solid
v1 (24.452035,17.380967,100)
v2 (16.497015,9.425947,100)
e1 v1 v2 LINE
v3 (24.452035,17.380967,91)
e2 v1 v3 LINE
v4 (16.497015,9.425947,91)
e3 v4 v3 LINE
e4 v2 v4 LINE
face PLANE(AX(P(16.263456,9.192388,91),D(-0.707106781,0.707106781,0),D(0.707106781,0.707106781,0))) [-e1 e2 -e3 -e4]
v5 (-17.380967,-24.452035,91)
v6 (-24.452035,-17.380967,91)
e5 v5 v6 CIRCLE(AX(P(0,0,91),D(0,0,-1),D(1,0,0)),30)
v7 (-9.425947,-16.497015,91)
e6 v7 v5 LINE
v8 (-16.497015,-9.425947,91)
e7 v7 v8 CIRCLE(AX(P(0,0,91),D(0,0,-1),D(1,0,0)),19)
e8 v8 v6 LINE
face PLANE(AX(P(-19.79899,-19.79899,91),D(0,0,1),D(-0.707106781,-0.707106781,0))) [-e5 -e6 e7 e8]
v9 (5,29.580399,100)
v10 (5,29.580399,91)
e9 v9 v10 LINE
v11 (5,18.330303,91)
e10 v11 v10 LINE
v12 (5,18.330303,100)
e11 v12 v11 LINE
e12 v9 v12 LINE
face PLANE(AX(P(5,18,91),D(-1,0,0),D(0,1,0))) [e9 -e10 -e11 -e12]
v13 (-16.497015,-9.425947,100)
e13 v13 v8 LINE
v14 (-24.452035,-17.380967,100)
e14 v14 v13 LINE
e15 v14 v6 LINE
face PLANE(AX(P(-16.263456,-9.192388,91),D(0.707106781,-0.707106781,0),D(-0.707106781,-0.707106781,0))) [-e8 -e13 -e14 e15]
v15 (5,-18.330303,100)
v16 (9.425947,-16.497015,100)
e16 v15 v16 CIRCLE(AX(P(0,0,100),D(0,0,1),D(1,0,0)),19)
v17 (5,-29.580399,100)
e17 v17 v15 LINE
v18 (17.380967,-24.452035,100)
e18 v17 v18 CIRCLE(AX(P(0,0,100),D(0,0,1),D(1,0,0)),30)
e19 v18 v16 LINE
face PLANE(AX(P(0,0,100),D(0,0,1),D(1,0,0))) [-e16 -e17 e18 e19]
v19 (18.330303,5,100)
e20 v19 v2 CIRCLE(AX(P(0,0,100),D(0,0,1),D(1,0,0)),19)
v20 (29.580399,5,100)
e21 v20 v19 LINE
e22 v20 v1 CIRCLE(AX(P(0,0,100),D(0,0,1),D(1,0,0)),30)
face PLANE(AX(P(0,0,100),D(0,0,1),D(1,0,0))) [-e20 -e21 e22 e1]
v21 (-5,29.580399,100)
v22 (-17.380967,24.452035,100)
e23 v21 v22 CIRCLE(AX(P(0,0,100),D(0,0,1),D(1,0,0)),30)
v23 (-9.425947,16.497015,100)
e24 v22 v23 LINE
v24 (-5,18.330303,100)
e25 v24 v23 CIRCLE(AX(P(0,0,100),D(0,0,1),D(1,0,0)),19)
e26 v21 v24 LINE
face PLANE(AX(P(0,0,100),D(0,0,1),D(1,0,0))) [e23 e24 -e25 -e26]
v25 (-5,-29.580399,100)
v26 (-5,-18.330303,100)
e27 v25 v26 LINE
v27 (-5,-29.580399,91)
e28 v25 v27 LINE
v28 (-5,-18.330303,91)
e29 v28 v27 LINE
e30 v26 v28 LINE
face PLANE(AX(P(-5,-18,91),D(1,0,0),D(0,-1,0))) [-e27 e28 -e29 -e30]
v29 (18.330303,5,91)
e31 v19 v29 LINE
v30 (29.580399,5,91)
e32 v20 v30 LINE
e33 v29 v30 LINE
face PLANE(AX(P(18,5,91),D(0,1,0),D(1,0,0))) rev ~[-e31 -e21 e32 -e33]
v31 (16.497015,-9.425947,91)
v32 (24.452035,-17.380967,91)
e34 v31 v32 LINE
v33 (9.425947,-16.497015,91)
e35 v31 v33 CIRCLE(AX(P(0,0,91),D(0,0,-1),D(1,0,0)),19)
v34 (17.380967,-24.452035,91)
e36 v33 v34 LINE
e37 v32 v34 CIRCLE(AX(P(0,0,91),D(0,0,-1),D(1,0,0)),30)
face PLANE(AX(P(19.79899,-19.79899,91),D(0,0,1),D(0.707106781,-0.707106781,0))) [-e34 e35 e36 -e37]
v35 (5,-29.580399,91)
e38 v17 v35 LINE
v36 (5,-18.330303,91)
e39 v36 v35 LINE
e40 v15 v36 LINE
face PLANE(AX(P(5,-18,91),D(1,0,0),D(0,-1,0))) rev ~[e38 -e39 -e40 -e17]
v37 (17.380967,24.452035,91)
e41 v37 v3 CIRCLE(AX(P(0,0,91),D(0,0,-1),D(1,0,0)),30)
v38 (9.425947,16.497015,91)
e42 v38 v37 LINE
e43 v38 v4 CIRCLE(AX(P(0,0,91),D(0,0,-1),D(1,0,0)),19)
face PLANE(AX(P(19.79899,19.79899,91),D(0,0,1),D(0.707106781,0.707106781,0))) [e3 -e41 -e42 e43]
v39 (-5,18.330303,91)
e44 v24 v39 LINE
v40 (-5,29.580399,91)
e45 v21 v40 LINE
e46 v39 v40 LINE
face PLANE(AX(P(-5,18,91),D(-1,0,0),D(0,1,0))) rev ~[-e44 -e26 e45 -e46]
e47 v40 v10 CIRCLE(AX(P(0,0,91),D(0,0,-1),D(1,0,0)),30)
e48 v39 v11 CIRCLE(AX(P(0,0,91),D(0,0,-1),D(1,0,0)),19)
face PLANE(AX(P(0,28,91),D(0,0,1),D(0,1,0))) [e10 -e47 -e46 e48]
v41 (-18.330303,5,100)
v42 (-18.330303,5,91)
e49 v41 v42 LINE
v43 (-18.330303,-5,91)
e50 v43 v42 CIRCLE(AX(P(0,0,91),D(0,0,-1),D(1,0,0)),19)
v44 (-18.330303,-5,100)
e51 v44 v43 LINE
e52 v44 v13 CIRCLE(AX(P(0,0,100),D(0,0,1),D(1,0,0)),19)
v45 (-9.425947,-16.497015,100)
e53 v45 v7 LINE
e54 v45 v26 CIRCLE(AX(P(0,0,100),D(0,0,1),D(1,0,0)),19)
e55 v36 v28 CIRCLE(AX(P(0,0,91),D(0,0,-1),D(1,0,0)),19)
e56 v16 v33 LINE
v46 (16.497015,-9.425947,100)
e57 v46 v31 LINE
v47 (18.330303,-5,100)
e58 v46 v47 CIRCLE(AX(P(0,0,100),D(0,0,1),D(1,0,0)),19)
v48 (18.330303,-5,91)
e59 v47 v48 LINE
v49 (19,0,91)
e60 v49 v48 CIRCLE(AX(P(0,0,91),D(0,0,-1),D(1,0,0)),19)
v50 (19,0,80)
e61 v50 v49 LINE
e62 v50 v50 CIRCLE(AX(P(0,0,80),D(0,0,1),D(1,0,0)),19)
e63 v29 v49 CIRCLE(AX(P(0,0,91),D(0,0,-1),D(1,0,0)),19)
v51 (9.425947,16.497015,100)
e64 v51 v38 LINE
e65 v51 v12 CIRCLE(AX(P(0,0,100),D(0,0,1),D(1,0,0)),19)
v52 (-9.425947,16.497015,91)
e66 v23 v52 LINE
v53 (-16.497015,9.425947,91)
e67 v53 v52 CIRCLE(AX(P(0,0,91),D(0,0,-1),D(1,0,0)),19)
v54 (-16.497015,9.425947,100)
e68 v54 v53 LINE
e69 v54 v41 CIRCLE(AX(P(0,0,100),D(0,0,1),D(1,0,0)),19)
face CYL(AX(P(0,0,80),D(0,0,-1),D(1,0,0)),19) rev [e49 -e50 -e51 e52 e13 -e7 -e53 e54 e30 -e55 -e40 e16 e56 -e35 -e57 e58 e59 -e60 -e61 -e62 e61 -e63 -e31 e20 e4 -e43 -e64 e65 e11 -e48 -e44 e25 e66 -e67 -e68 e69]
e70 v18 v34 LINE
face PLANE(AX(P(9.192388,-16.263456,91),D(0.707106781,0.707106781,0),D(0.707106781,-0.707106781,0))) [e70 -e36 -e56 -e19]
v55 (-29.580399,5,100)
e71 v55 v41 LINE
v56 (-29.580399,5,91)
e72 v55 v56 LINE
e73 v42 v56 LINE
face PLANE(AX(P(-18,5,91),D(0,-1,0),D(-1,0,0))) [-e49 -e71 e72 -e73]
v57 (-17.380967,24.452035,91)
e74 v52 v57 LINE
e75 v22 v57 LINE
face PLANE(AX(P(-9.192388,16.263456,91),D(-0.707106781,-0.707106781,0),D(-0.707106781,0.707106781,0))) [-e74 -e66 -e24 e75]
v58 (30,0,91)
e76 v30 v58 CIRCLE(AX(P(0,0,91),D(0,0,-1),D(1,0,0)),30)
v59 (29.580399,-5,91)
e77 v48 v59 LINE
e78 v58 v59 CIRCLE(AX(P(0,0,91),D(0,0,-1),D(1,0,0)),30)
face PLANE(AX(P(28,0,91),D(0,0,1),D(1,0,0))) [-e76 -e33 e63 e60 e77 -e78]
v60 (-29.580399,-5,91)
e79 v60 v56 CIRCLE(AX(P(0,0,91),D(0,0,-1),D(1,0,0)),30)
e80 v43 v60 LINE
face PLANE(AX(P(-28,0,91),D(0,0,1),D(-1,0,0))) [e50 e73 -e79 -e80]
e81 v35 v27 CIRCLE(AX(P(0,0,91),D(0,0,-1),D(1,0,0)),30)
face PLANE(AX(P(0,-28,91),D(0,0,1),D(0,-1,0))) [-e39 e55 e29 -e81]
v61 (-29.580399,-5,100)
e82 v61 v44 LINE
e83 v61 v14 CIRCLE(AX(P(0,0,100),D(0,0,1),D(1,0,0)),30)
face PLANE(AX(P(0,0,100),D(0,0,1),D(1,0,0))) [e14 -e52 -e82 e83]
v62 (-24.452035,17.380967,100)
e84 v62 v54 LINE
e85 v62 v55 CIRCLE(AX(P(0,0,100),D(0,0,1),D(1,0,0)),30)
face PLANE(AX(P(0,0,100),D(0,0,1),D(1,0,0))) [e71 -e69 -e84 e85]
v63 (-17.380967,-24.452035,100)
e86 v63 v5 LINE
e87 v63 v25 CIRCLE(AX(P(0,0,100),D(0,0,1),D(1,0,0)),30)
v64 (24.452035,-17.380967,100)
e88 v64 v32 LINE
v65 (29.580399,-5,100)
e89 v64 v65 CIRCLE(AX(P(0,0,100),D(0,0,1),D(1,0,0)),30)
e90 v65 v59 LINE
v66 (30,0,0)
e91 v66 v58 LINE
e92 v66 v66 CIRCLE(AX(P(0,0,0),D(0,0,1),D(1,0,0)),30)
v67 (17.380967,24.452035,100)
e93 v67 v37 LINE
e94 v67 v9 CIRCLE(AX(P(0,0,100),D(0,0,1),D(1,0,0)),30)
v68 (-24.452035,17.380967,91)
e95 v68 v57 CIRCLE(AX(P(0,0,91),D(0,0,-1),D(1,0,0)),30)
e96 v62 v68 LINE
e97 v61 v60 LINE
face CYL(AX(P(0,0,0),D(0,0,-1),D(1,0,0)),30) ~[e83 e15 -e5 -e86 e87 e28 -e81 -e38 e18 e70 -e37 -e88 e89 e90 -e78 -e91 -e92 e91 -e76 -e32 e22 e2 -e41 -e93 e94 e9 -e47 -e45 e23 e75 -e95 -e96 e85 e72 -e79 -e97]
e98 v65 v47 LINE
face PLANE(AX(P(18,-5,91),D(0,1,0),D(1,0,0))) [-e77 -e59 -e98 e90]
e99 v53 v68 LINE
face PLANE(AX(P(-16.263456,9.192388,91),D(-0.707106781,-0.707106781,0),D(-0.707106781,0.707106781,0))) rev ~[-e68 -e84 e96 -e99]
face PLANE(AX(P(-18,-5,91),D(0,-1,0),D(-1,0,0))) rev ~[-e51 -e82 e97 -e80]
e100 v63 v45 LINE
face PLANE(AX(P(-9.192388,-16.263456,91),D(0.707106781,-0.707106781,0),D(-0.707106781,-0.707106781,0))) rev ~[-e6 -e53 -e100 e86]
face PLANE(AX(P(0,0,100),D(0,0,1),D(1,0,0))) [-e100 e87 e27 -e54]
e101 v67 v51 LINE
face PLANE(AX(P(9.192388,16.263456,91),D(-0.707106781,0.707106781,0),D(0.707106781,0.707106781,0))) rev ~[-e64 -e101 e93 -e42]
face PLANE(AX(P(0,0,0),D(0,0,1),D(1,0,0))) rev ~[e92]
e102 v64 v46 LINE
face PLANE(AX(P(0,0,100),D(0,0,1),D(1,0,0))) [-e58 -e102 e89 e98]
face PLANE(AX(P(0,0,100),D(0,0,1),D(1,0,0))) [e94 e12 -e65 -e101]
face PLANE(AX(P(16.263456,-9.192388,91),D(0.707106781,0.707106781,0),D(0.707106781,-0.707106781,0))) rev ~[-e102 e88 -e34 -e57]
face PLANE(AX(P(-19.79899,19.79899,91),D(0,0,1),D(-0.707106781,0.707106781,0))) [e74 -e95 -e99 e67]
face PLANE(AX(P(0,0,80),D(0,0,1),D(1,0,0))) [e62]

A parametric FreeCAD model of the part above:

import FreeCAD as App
import Part
import Sketcher


def add_polygon(sketch, points):
    """Adds a closed chain of lines whose ends are joined by coincident constraints."""
    first, n = sketch.GeometryCount, len(points)
    for a, b in zip(points, points[1:] + points[:1]):
        sketch.addGeometry(Part.LineSegment(App.Vector(*a, 0), App.Vector(*b, 0)), False)
    for i in range(n):
        sketch.addConstraint(Sketcher.Constraint("Coincident", first + i, 2, first + (i + 1) % n, 1))

doc = App.newDocument("Part")
body = doc.addObject("PartDesign::Body", "Body")

# Sketch on XY plane
sketch1 = body.newObject("Sketcher::SketchObject", "Sketch")
sketch1.AttachmentSupport = (doc.getObject("XY_Plane"), [""])
sketch1.MapMode = "FlatFace"
sketch1.AttachmentOffset = App.Placement(App.Vector(0, 0, 80), App.Rotation())
sketch1.addGeometry(Part.Circle(App.Vector(0, 0, 0), App.Vector(0, 0, 1), 19), False)
sketch1.addConstraint(Sketcher.Constraint("Coincident", 0, 3, -1, 1))
sketch1.addConstraint(Sketcher.Constraint("Diameter", 0, 38.0))
pad1 = body.newObject("PartDesign::Pad", "Pad")
pad1.Profile = sketch1
pad1.Length = 20
body2 = doc.addObject("PartDesign::Body", "Body001")

# Sketch on XY plane
sketch2 = body2.newObject("Sketcher::SketchObject", "Sketch001")
sketch2.AttachmentSupport = (doc.getObject("XY_Plane001"), [""])
sketch2.MapMode = "FlatFace"
sketch2.AttachmentOffset = App.Placement(App.Vector(0, 0, 91), App.Rotation())
add_polygon(sketch2, [(18, 5), (18, -5), (38, -5), (38, 5)])  # lines 0-3
sketch2.addConstraint(Sketcher.Constraint("Vertical", 0))
sketch2.addConstraint(Sketcher.Constraint("Horizontal", 1))
sketch2.addConstraint(Sketcher.Constraint("Vertical", 2))
sketch2.addConstraint(Sketcher.Constraint("Horizontal", 3))
sketch2.addConstraint(Sketcher.Constraint("DistanceX", 1, 1, 1, 2, 20.0))
sketch2.addConstraint(Sketcher.Constraint("DistanceY", 0, 2, 0, 1, 10.0))
sketch2.addConstraint(Sketcher.Constraint("DistanceX", -1, 1, 0, 2, 18.0))
sketch2.addConstraint(Sketcher.Constraint("DistanceY", 0, 2, -1, 1, 5.0))
pad2 = body2.newObject("PartDesign::Pad", "Pad001")
pad2.Profile = sketch2
pad2.Length = 10
body3 = doc.addObject("PartDesign::Body", "Body002")
body3.AllowCompound = True
doc.recompute()

body3.BaseFeature = body2
doc.recompute()

body4 = doc.addObject("PartDesign::Body", "Body003")
body4.BaseFeature = body2
body4.Placement = App.Placement(App.Vector(0, 0, 0), App.Rotation(App.Vector(0, 0, 1), 45))
boolean = body3.newObject("PartDesign::Boolean", "Boolean")
boolean.Type = "Fuse"
boolean.addObjects([body4])
doc.recompute()

body5 = doc.addObject("PartDesign::Body", "Body004")
body5.BaseFeature = body2
body5.Placement = App.Placement(App.Vector(0, 0, 0), App.Rotation(App.Vector(0, 0, 1), 90))
boolean2 = body3.newObject("PartDesign::Boolean", "Boolean001")
boolean2.Type = "Fuse"
boolean2.addObjects([body5])
doc.recompute()

body6 = doc.addObject("PartDesign::Body", "Body005")
body6.BaseFeature = body2
body6.Placement = App.Placement(App.Vector(0, 0, 0), App.Rotation(App.Vector(0, 0, 1), 135))
boolean3 = body3.newObject("PartDesign::Boolean", "Boolean002")
boolean3.Type = "Fuse"
boolean3.addObjects([body6])
doc.recompute()

body7 = doc.addObject("PartDesign::Body", "Body006")
body7.BaseFeature = body2
body7.Placement = App.Placement(App.Vector(0, 0, 0), App.Rotation(App.Vector(0, 0, 1), 180))
boolean4 = body3.newObject("PartDesign::Boolean", "Boolean003")
boolean4.Type = "Fuse"
boolean4.addObjects([body7])
doc.recompute()

body8 = doc.addObject("PartDesign::Body", "Body007")
body8.BaseFeature = body2
body8.Placement = App.Placement(App.Vector(0, 0, 0), App.Rotation(App.Vector(0, 0, 1), 225))
boolean5 = body3.newObject("PartDesign::Boolean", "Boolean004")
boolean5.Type = "Fuse"
boolean5.addObjects([body8])
doc.recompute()

body9 = doc.addObject("PartDesign::Body", "Body008")
body9.BaseFeature = body2
body9.Placement = App.Placement(App.Vector(0, 0, 0), App.Rotation(App.Vector(0, 0, 1), 270))
boolean6 = body3.newObject("PartDesign::Boolean", "Boolean005")
boolean6.Type = "Fuse"
boolean6.addObjects([body9])
doc.recompute()

body2.Placement = App.Placement(App.Vector(0, 0, 0), App.Rotation(App.Vector(0, 0, 1), 315))
boolean7 = body3.newObject("PartDesign::Boolean", "Boolean006")
boolean7.Type = "Fuse"
boolean7.addObjects([body2])
body10 = doc.addObject("PartDesign::Body", "Body009")

# Sketch on XY plane
sketch3 = body10.newObject("Sketcher::SketchObject", "Sketch002")
sketch3.AttachmentSupport = (doc.getObject("XY_Plane009"), [""])
sketch3.MapMode = "FlatFace"
sketch3.addGeometry(Part.Circle(App.Vector(0, 0, 0), App.Vector(0, 0, 1), 30), False)
sketch3.addConstraint(Sketcher.Constraint("Coincident", 0, 3, -1, 1))
sketch3.addConstraint(Sketcher.Constraint("Diameter", 0, 60.0))
pad3 = body10.newObject("PartDesign::Pad", "Pad002")
pad3.Profile = sketch3
pad3.Length = 100
doc.recompute()

boolean8 = body10.newObject("PartDesign::Boolean", "Boolean007")
boolean8.Type = "Cut"
boolean8.addObjects([body3])
doc.recompute()

boolean9 = body10.newObject("PartDesign::Boolean", "Boolean008")
boolean9.Type = "Cut"
boolean9.addObjects([body])

doc.recompute()
